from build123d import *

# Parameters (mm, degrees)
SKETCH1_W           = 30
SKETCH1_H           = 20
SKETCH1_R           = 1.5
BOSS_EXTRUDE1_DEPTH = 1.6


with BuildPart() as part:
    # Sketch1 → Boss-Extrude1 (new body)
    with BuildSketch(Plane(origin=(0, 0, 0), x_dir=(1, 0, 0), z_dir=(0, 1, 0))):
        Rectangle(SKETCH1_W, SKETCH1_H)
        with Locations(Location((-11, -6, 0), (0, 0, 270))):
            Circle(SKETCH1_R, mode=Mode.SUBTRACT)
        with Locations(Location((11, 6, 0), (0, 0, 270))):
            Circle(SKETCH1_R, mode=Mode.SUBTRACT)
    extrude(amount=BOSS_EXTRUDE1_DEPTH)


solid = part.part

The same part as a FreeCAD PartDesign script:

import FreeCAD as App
import Part
import Sketcher

V = App.Vector
Q = App.Units.Quantity


def add_polygon(sketch, points):
    """Adds a closed chain of lines whose ends are joined by coincident constraints."""
    first, n = sketch.GeometryCount, len(points)
    for a, b in zip(points, points[1:] + points[:1]):
        sketch.addGeometry(Part.LineSegment(App.Vector(*a, 0), App.Vector(*b, 0)), False)
    for i in range(n):
        sketch.addConstraint(Sketcher.Constraint("Coincident", first + i, 2, first + (i + 1) % n, 1))

doc = App.newDocument("Part")
body = doc.addObject("PartDesign::Body", "Body")

sketch1 = body.newObject("Sketcher::SketchObject", "Sketch")
sketch1.AttachmentSupport = (doc.getObject("XZ_Plane"), [""])
sketch1.MapMode = "FlatFace"
add_polygon(sketch1, [(-15, -10), (-15, 10), (15, 10), (15, -10)])
sketch1.addGeometry(Part.Circle(V(-11, 6, 0), V(0, 0, 1), 1.5), False)
sketch1.addGeometry(Part.Circle(V(11, -6, 0), V(0, 0, 1), 1.5), False)
sketch1.addConstraint([
    Sketcher.Constraint("Vertical", 0),
    Sketcher.Constraint("Horizontal", 1),
    Sketcher.Constraint("Vertical", 2),
    Sketcher.Constraint("Horizontal", 3),
    Sketcher.Constraint("Equal", 4, 5),
    Sketcher.Constraint("Symmetric", 4, 3, 5, 3, -1, 1),
    Sketcher.Constraint("Symmetric", 0, 2, 2, 2, -1, 1),
    Sketcher.Constraint("Diameter", 4, Q("3 mm")),
    Sketcher.Constraint("DistanceX", 1, 1, 1, 2, Q("30 mm")),
    Sketcher.Constraint("DistanceY", 0, 1, 0, 2, Q("20 mm")),
    Sketcher.Constraint("DistanceX", 4, 3, -1, 1, Q("11 mm")),
    Sketcher.Constraint("DistanceY", -1, 1, 4, 3, Q("6 mm")),
])
pad1 = body.newObject("PartDesign::Pad", "Pad")
pad1.Profile = sketch1
pad1.Length = 1.6
pad1.Reversed = True

doc.recompute()
